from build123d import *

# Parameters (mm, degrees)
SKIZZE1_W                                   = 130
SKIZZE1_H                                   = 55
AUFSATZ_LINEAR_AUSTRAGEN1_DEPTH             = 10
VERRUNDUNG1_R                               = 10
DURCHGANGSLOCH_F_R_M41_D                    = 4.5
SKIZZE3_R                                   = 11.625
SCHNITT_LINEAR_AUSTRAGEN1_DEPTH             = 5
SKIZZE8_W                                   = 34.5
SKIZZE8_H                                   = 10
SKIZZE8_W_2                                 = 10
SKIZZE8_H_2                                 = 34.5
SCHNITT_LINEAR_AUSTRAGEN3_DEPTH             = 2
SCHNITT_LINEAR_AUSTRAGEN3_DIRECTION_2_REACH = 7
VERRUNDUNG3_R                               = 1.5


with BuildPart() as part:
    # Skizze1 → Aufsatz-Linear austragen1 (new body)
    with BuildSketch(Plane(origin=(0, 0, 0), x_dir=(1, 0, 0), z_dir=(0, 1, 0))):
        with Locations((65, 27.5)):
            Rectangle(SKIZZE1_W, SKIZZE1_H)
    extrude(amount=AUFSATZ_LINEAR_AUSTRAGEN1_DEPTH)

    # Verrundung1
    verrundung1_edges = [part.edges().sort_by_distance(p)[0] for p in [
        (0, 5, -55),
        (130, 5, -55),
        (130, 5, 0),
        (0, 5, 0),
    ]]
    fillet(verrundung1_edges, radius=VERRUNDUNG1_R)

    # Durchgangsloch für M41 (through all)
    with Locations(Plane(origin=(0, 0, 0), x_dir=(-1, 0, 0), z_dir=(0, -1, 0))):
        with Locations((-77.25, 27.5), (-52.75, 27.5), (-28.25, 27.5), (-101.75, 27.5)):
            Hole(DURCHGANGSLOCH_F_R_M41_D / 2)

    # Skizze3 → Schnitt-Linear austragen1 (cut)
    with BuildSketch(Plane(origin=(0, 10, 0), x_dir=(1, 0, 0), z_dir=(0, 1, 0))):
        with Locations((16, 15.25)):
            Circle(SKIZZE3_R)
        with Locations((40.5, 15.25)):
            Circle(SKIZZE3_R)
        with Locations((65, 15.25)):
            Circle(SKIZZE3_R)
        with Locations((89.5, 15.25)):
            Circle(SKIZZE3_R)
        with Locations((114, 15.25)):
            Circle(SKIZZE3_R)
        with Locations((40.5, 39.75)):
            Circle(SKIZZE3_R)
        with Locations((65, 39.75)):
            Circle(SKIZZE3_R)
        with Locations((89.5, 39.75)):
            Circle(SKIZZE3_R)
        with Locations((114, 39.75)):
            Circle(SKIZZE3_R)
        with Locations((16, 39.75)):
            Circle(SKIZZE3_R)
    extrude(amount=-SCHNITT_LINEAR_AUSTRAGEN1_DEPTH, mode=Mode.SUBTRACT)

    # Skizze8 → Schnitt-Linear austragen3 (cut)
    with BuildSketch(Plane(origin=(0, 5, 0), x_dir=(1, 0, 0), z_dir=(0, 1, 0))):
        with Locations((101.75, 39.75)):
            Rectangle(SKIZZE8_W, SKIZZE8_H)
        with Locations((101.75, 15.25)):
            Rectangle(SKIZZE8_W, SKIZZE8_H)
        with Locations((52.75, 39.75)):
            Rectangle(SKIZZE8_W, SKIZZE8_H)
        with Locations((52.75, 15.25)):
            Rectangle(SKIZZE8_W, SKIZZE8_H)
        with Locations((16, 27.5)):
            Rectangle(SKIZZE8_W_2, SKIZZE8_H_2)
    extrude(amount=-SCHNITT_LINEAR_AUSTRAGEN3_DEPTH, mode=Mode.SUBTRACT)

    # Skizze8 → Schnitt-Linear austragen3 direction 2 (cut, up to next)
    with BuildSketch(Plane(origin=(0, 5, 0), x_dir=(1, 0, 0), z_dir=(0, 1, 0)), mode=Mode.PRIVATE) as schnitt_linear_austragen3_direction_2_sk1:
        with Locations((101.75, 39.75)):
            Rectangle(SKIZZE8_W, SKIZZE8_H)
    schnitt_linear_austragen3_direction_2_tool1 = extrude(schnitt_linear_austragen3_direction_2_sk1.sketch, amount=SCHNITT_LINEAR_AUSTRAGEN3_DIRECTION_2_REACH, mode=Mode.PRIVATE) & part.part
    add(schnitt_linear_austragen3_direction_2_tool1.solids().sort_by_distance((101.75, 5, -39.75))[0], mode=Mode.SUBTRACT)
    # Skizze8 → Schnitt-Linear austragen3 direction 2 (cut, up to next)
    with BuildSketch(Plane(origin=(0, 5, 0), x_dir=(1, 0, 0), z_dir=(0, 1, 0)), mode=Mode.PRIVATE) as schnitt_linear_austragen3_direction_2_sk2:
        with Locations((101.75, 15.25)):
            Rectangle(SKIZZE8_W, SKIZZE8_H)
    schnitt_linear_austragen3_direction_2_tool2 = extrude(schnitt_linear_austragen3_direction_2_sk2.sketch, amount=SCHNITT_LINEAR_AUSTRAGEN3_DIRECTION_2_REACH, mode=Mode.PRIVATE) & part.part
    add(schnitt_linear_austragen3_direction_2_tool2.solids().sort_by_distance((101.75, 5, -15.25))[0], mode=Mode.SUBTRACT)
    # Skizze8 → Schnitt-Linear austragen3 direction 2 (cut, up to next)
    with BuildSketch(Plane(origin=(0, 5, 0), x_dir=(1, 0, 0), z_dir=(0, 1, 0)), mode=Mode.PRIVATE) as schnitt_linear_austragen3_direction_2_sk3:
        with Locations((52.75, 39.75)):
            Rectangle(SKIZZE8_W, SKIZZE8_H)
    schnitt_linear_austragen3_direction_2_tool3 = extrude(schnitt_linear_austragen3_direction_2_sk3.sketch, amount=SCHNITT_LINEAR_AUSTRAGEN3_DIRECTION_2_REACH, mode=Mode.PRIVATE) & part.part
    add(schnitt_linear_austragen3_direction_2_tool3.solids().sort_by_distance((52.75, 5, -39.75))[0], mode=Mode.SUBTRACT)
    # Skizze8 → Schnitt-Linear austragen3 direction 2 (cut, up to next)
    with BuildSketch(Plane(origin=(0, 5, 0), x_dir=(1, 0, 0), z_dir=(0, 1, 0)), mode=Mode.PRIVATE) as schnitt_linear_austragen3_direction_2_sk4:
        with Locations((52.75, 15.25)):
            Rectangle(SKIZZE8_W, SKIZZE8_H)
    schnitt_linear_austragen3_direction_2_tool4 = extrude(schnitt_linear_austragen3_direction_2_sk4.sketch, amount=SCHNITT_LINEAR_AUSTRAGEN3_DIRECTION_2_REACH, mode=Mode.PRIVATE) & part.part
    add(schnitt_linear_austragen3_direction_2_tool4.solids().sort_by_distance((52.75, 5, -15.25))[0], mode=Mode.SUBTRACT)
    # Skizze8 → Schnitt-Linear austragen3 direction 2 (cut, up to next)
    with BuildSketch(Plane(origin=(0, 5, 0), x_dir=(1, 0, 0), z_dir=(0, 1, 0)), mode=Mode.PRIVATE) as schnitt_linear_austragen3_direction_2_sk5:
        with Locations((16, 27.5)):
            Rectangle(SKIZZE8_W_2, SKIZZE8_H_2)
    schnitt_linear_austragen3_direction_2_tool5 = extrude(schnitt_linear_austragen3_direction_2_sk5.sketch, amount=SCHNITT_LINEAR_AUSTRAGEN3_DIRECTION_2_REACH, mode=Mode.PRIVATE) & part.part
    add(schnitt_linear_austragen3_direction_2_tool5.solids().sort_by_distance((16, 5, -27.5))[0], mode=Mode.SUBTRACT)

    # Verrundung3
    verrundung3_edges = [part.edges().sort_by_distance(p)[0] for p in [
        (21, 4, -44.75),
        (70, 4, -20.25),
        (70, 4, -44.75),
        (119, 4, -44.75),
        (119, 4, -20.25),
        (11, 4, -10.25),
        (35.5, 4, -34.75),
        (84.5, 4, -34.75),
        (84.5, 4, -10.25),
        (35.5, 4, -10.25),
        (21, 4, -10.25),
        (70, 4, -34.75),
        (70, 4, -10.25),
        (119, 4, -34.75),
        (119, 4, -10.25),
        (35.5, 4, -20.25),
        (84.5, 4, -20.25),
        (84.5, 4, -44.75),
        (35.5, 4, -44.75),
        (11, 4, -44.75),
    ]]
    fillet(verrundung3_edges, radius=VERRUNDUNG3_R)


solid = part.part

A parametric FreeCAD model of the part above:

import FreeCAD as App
import Part
import Sketcher


def edges_at(feature, points):
    """Names of the edges that pass closest to the given points."""
    edges = feature.Shape.Edges
    near = lambda p: min(range(len(edges)), key=lambda i: edges[i].distToShape(Part.Vertex(*p))[0])
    return sorted({f"Edge{near(p) + 1}" for p in points})


def add_polygon(sketch, points):
    """Adds a closed chain of lines whose ends are joined by coincident constraints."""
    first, n = sketch.GeometryCount, len(points)
    for a, b in zip(points, points[1:] + points[:1]):
        sketch.addGeometry(Part.LineSegment(App.Vector(*a, 0), App.Vector(*b, 0)), False)
    for i in range(n):
        sketch.addConstraint(Sketcher.Constraint("Coincident", first + i, 2, first + (i + 1) % n, 1))

doc = App.newDocument("Part")
body = doc.addObject("PartDesign::Body", "Body")

sketch1 = doc.addObject("Sketcher::SketchObject", "Sketch")
body.addObject(sketch1)
sketch1.AttachmentSupport = (doc.XZ_Plane, [""])
sketch1.MapMode = "FlatFace"
add_polygon(sketch1, [(0, -55), (0, 0), (130, 0), (130, -55)])
sketch1.addConstraint([
    Sketcher.Constraint("Vertical", 0),
    Sketcher.Constraint("Horizontal", 1),
    Sketcher.Constraint("Vertical", 2),
    Sketcher.Constraint("Horizontal", 3),
    Sketcher.Constraint("Coincident", 0, 2, -1, 1),
    Sketcher.Constraint("DistanceX", 1, 1, 1, 2, 130.0),
    Sketcher.Constraint("DistanceY", 0, 1, 0, 2, 55.0),
])
pad1 = doc.addObject("PartDesign::Pad", "Pad")
body.addObject(pad1)
pad1.Profile = sketch1
pad1.Length = 10
pad1.Reversed = True
doc.recompute()

fillet = doc.addObject("PartDesign::Fillet", "Fillet")
body.addObject(fillet)
fillet.Base = (pad1, edges_at(pad1, [
    (0, 5, -55),
    (130, 5, -55),
    (130, 5, 0),
    (0, 5, 0),
]))
fillet.Radius = 10

sketch2 = doc.addObject("Sketcher::SketchObject", "Sketch001")
body.addObject(sketch2)
sketch2.AttachmentSupport = (doc.XZ_Plane, [""])
sketch2.MapMode = "FlatFace"
sketch2.addGeometry([
    Part.Circle(App.Vector(77.25, -27.5, 0), App.Vector(0, 0, 1), 2.25),
    Part.Circle(App.Vector(52.75, -27.5, 0), App.Vector(0, 0, 1), 2.25),
    Part.Circle(App.Vector(28.25, -27.5, 0), App.Vector(0, 0, 1), 2.25),
    Part.Circle(App.Vector(101.75, -27.5, 0), App.Vector(0, 0, 1), 2.25),
], False)
sketch2.addConstraint([
    Sketcher.Constraint("Equal", 0, 1),
    Sketcher.Constraint("Equal", 1, 2),
    Sketcher.Constraint("Equal", 2, 3),
    Sketcher.Constraint("Horizontal", 0, 3, 1, 3),
    Sketcher.Constraint("Horizontal", 1, 3, 2, 3),
    Sketcher.Constraint("Horizontal", 2, 3, 3, 3),
    Sketcher.Constraint("Diameter", 0, 4.5),
    Sketcher.Constraint("DistanceX", 2, 3, 0, 3, 49.0),
    Sketcher.Constraint("DistanceX", 1, 3, 3, 3, 49.0),
    Sketcher.Constraint("DistanceY", 0, 3, -1, 1, 27.5),
    Sketcher.Constraint("DistanceX", 1, 3, 0, 3, 24.5),
    Sketcher.Constraint("DistanceX", -1, 1, 0, 3, 77.25),
])
doc.recompute()
hole = doc.addObject("PartDesign::Hole", "Hole")
body.addObject(hole)
hole.Profile = sketch2
hole.ThreadType = "None"
hole.Diameter = 4.5
hole.DepthType = "ThroughAll"

sketch3 = doc.addObject("Sketcher::SketchObject", "Sketch002")
body.addObject(sketch3)
sketch3.AttachmentSupport = (doc.XZ_Plane, [""])
sketch3.MapMode = "FlatFace"
sketch3.AttachmentOffset = App.Placement(App.Vector(0, 0, -10), App.Rotation())
sketch3.addGeometry([
    Part.Circle(App.Vector(16, -15.25, 0), App.Vector(0, 0, 1), 11.625),
    Part.Circle(App.Vector(40.5, -15.25, 0), App.Vector(0, 0, 1), 11.625),
    Part.Circle(App.Vector(65, -15.25, 0), App.Vector(0, 0, 1), 11.625),
    Part.Circle(App.Vector(89.5, -15.25, 0), App.Vector(0, 0, 1), 11.625),
    Part.Circle(App.Vector(114, -15.25, 0), App.Vector(0, 0, 1), 11.625),
    Part.Circle(App.Vector(40.5, -39.75, 0), App.Vector(0, 0, 1), 11.625),
    Part.Circle(App.Vector(65, -39.75, 0), App.Vector(0, 0, 1), 11.625),
    Part.Circle(App.Vector(89.5, -39.75, 0), App.Vector(0, 0, 1), 11.625),
    Part.Circle(App.Vector(114, -39.75, 0), App.Vector(0, 0, 1), 11.625),
    Part.Circle(App.Vector(16, -39.75, 0), App.Vector(0, 0, 1), 11.625),
], False)
sketch3.addConstraint([
    Sketcher.Constraint("Equal", 0, 1),
    Sketcher.Constraint("Equal", 1, 2),
    Sketcher.Constraint("Equal", 2, 3),
    Sketcher.Constraint("Equal", 3, 4),
    Sketcher.Constraint("Equal", 4, 5),
    Sketcher.Constraint("Equal", 5, 6),
    Sketcher.Constraint("Equal", 6, 7),
    Sketcher.Constraint("Equal", 7, 8),
    Sketcher.Constraint("Equal", 8, 9),
    Sketcher.Constraint("Horizontal", 0, 3, 1, 3),
    Sketcher.Constraint("Horizontal", 1, 3, 2, 3),
    Sketcher.Constraint("Horizontal", 2, 3, 3, 3),
    Sketcher.Constraint("Horizontal", 3, 3, 4, 3),
    Sketcher.Constraint("Horizontal", 5, 3, 6, 3),
    Sketcher.Constraint("Horizontal", 6, 3, 7, 3),
    Sketcher.Constraint("Horizontal", 7, 3, 8, 3),
    Sketcher.Constraint("Horizontal", 8, 3, 9, 3),
    Sketcher.Constraint("Vertical", 1, 3, 5, 3),
    Sketcher.Constraint("Vertical", 2, 3, 6, 3),
    Sketcher.Constraint("Vertical", 3, 3, 7, 3),
    Sketcher.Constraint("Vertical", 4, 3, 8, 3),
    Sketcher.Constraint("Vertical", 0, 3, 9, 3),
    Sketcher.Constraint("Diameter", 0, 23.25),
    Sketcher.Constraint("DistanceX", -1, 1, 0, 3, 16.0),
    Sketcher.Constraint("DistanceX", -1, 1, 2, 3, 65.0),
    Sketcher.Constraint("DistanceX", -1, 1, 4, 3, 114.0),
    Sketcher.Constraint("DistanceX", 1, 3, 3, 3, 49.0),
    Sketcher.Constraint("DistanceX", -1, 1, 1, 3, 40.5),
    Sketcher.Constraint("DistanceY", 5, 3, 1, 3, 24.5),
    Sketcher.Constraint("DistanceY", 0, 3, -1, 1, 15.25),
])
pocket1 = doc.addObject("PartDesign::Pocket", "Pocket")
body.addObject(pocket1)
pocket1.Profile = sketch3
pocket1.Length = 5
pocket1.Reversed = True

sketch4 = doc.addObject("Sketcher::SketchObject", "Sketch003")
body.addObject(sketch4)
sketch4.AttachmentSupport = (doc.XZ_Plane, [""])
sketch4.MapMode = "FlatFace"
sketch4.AttachmentOffset = App.Placement(App.Vector(0, 0, -5), App.Rotation())
add_polygon(sketch4, [(84.5, -44.75), (84.5, -34.75), (119, -34.75), (119, -44.75)])
add_polygon(sketch4, [(84.5, -20.25), (84.5, -10.25), (119, -10.25), (119, -20.25)])
add_polygon(sketch4, [(35.5, -44.75), (35.5, -34.75), (70, -34.75), (70, -44.75)])
add_polygon(sketch4, [(35.5, -20.25), (35.5, -10.25), (70, -10.25), (70, -20.25)])
add_polygon(sketch4, [(11, -44.75), (11, -10.25), (21, -10.25), (21, -44.75)])
sketch4.addConstraint([
    Sketcher.Constraint("Vertical", 0),
    Sketcher.Constraint("Horizontal", 1),
    Sketcher.Constraint("Vertical", 2),
    Sketcher.Constraint("Horizontal", 3),
    Sketcher.Constraint("Vertical", 4),
    Sketcher.Constraint("Horizontal", 5),
    Sketcher.Constraint("Vertical", 6),
    Sketcher.Constraint("Horizontal", 7),
    Sketcher.Constraint("Vertical", 8),
    Sketcher.Constraint("Horizontal", 9),
    Sketcher.Constraint("Vertical", 10),
    Sketcher.Constraint("Horizontal", 11),
    Sketcher.Constraint("Vertical", 12),
    Sketcher.Constraint("Horizontal", 13),
    Sketcher.Constraint("Vertical", 14),
    Sketcher.Constraint("Horizontal", 15),
    Sketcher.Constraint("Vertical", 16),
    Sketcher.Constraint("Horizontal", 17),
    Sketcher.Constraint("Vertical", 18),
    Sketcher.Constraint("Horizontal", 19),
    Sketcher.Constraint("Horizontal", 1, 2, 8, 2),
    Sketcher.Constraint("Horizontal", 3, 2, 10, 2),
    Sketcher.Constraint("Horizontal", 5, 2, 12, 2),
    Sketcher.Constraint("Horizontal", 7, 2, 14, 2),
    Sketcher.Constraint("Horizontal", 13, 2, 16, 2),
    Sketcher.Constraint("Horizontal", 11, 2, 18, 2),
    Sketcher.Constraint("Vertical", 3, 2, 4, 2),
    Sketcher.Constraint("Vertical", 2, 2, 5, 2),
    Sketcher.Constraint("Vertical", 11, 2, 12, 2),
    Sketcher.Constraint("Vertical", 10, 2, 13, 2),
    Sketcher.Constraint("Equal", 7, 9),
    Sketcher.Constraint("Equal", 19, 0),
    Sketcher.Constraint("Equal", 2, 4),
    Sketcher.Constraint("Equal", 15, 16),
    Sketcher.Constraint("DistanceX", 17, 1, 17, 2, 10.0),
    Sketcher.Constraint("DistanceX", 1, 1, 1, 2, 34.5),
    Sketcher.Constraint("DistanceX", -1, 1, 1, 2, 119.0),
    Sketcher.Constraint("DistanceX", -1, 1, 9, 2, 70.0),
    Sketcher.Constraint("DistanceX", -1, 1, 16, 2, 11.0),
    Sketcher.Constraint("DistanceY", 0, 2, -1, 1, 34.75),
])
pocket2 = doc.addObject("PartDesign::Pocket", "Pocket001")
body.addObject(pocket2)
pocket2.Profile = sketch4
pocket2.Length = 2
pocket2.Reversed = True

sketch5 = doc.addObject("Sketcher::SketchObject", "Sketch004")
body.addObject(sketch5)
sketch5.AttachmentSupport = (doc.XZ_Plane, [""])
sketch5.MapMode = "FlatFace"
sketch5.AttachmentOffset = App.Placement(App.Vector(0, 0, -5), App.Rotation())
add_polygon(sketch5, [(84.5, -44.75), (84.5, -34.75), (119, -34.75), (119, -44.75)])
sketch5.addConstraint([
    Sketcher.Constraint("Vertical", 0),
    Sketcher.Constraint("Horizontal", 1),
    Sketcher.Constraint("Vertical", 2),
    Sketcher.Constraint("Horizontal", 3),
    Sketcher.Constraint("DistanceY", 0, 1, 0, 2, 10.0),
    Sketcher.Constraint("DistanceX", 1, 1, 1, 2, 34.5),
    Sketcher.Constraint("DistanceX", -1, 1, 1, 2, 119.0),
    Sketcher.Constraint("DistanceY", 0, 2, -1, 1, 34.75),
])
pocket3 = doc.addObject("PartDesign::Pocket", "Pocket002")
body.addObject(pocket3)
pocket3.Profile = sketch5
pocket3.Type = "UpToFirst"

sketch6 = doc.addObject("Sketcher::SketchObject", "Sketch005")
body.addObject(sketch6)
sketch6.AttachmentSupport = (doc.XZ_Plane, [""])
sketch6.MapMode = "FlatFace"
sketch6.AttachmentOffset = App.Placement(App.Vector(0, 0, -5), App.Rotation())
add_polygon(sketch6, [(84.5, -20.25), (84.5, -10.25), (119, -10.25), (119, -20.25)])
sketch6.addConstraint([
    Sketcher.Constraint("Vertical", 0),
    Sketcher.Constraint("Horizontal", 1),
    Sketcher.Constraint("Vertical", 2),
    Sketcher.Constraint("Horizontal", 3),
    Sketcher.Constraint("DistanceY", 0, 1, 0, 2, 10.0),
    Sketcher.Constraint("DistanceX", 1, 1, 1, 2, 34.5),
    Sketcher.Constraint("DistanceX", -1, 1, 1, 2, 119.0),
    Sketcher.Constraint("DistanceY", 0, 2, -1, 1, 10.25),
])
pocket4 = doc.addObject("PartDesign::Pocket", "Pocket003")
body.addObject(pocket4)
pocket4.Profile = sketch6
pocket4.Type = "UpToFirst"

sketch7 = doc.addObject("Sketcher::SketchObject", "Sketch006")
body.addObject(sketch7)
sketch7.AttachmentSupport = (doc.XZ_Plane, [""])
sketch7.MapMode = "FlatFace"
sketch7.AttachmentOffset = App.Placement(App.Vector(0, 0, -5), App.Rotation())
add_polygon(sketch7, [(35.5, -44.75), (35.5, -34.75), (70, -34.75), (70, -44.75)])
sketch7.addConstraint([
    Sketcher.Constraint("Vertical", 0),
    Sketcher.Constraint("Horizontal", 1),
    Sketcher.Constraint("Vertical", 2),
    Sketcher.Constraint("Horizontal", 3),
    Sketcher.Constraint("DistanceY", 0, 1, 0, 2, 10.0),
    Sketcher.Constraint("DistanceX", 1, 1, 1, 2, 34.5),
    Sketcher.Constraint("DistanceX", -1, 1, 1, 2, 70.0),
    Sketcher.Constraint("DistanceY", 0, 2, -1, 1, 34.75),
])
pocket5 = doc.addObject("PartDesign::Pocket", "Pocket004")
body.addObject(pocket5)
pocket5.Profile = sketch7
pocket5.Type = "UpToFirst"

sketch8 = doc.addObject("Sketcher::SketchObject", "Sketch007")
body.addObject(sketch8)
sketch8.AttachmentSupport = (doc.XZ_Plane, [""])
sketch8.MapMode = "FlatFace"
sketch8.AttachmentOffset = App.Placement(App.Vector(0, 0, -5), App.Rotation())
add_polygon(sketch8, [(35.5, -20.25), (35.5, -10.25), (70, -10.25), (70, -20.25)])
sketch8.addConstraint([
    Sketcher.Constraint("Vertical", 0),
    Sketcher.Constraint("Horizontal", 1),
    Sketcher.Constraint("Vertical", 2),
    Sketcher.Constraint("Horizontal", 3),
    Sketcher.Constraint("DistanceY", 0, 1, 0, 2, 10.0),
    Sketcher.Constraint("DistanceX", 1, 1, 1, 2, 34.5),
    Sketcher.Constraint("DistanceX", -1, 1, 1, 2, 70.0),
    Sketcher.Constraint("DistanceY", 0, 2, -1, 1, 10.25),
])
pocket6 = doc.addObject("PartDesign::Pocket", "Pocket005")
body.addObject(pocket6)
pocket6.Profile = sketch8
pocket6.Type = "UpToFirst"

sketch9 = doc.addObject("Sketcher::SketchObject", "Sketch008")
body.addObject(sketch9)
sketch9.AttachmentSupport = (doc.XZ_Plane, [""])
sketch9.MapMode = "FlatFace"
sketch9.AttachmentOffset = App.Placement(App.Vector(0, 0, -5), App.Rotation())
add_polygon(sketch9, [(11, -44.75), (11, -10.25), (21, -10.25), (21, -44.75)])
sketch9.addConstraint([
    Sketcher.Constraint("Vertical", 0),
    Sketcher.Constraint("Horizontal", 1),
    Sketcher.Constraint("Vertical", 2),
    Sketcher.Constraint("Horizontal", 3),
    Sketcher.Constraint("DistanceX", 1, 1, 1, 2, 10.0),
    Sketcher.Constraint("DistanceY", 0, 1, 0, 2, 34.5),
    Sketcher.Constraint("DistanceX", -1, 1, 0, 2, 11.0),
    Sketcher.Constraint("DistanceY", 0, 2, -1, 1, 10.25),
])
pocket7 = doc.addObject("PartDesign::Pocket", "Pocket006")
body.addObject(pocket7)
pocket7.Profile = sketch9
pocket7.Type = "UpToFirst"
doc.recompute()

fillet2 = doc.addObject("PartDesign::Fillet", "Fillet001")
body.addObject(fillet2)
fillet2.Base = (pocket7, edges_at(pocket7, [
    (21, 4, -44.75),
    (70, 4, -20.25),
    (70, 4, -44.75),
    (119, 4, -44.75),
    (119, 4, -20.25),
    (11, 4, -10.25),
    (35.5, 4, -34.75),
    (84.5, 4, -34.75),
    (84.5, 4, -10.25),
    (35.5, 4, -10.25),
    (21, 4, -10.25),
    (70, 4, -34.75),
    (70, 4, -10.25),
    (119, 4, -34.75),
    (119, 4, -10.25),
    (35.5, 4, -20.25),
    (84.5, 4, -20.25),
    (84.5, 4, -44.75),
    (35.5, 4, -44.75),
    (11, 4, -44.75),
]))
fillet2.Radius = 1.5

doc.recompute()
